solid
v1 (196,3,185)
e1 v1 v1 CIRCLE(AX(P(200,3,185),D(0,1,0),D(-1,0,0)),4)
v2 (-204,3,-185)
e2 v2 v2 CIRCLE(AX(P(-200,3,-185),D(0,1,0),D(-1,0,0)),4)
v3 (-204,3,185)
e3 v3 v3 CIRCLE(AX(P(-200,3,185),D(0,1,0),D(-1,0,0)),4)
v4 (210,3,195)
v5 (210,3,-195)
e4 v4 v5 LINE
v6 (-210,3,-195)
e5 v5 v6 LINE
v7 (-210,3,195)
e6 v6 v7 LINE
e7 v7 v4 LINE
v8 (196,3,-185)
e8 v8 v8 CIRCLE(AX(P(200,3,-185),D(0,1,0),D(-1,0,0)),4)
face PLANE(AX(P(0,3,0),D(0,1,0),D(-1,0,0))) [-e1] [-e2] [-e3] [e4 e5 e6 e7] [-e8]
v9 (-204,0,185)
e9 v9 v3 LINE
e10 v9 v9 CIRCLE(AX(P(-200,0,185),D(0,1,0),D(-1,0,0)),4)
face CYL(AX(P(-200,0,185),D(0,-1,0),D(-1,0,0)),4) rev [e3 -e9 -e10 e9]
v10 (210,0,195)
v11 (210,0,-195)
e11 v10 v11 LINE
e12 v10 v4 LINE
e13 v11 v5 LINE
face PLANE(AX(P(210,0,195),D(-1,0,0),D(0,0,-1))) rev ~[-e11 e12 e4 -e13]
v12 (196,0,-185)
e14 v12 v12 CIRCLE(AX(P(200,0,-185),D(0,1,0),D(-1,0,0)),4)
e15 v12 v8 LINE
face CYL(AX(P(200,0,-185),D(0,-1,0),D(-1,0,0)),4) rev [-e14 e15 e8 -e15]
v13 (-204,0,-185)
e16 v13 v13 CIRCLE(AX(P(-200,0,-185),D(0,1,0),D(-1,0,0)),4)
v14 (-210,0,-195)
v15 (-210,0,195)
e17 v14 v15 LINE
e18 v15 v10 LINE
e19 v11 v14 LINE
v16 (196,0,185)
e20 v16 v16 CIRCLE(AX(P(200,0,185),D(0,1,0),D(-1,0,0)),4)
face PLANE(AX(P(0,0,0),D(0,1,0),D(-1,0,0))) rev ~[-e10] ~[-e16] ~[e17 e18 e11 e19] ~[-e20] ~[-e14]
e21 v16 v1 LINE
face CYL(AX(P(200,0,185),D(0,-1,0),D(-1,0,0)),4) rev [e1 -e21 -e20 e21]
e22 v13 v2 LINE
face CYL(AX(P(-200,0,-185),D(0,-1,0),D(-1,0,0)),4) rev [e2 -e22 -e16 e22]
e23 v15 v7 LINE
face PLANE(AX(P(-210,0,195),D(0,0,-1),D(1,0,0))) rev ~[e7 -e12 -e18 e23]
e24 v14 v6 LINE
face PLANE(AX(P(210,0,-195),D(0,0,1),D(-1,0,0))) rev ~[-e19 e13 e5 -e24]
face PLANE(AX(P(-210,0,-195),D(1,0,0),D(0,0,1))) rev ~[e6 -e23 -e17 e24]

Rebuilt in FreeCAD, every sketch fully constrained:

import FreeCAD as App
import Part
import Sketcher
from FreeCAD import Vector
Q = App.Units.Quantity

doc = App.newDocument("Part")
params = doc.addObject("Spreadsheet::Sheet", "Params")
for row, (alias, value) in enumerate([
    ("sketch1_diameter", "8 mm"),
    ("sketch1_width", "420 mm"),
    ("sketch1_height", "390 mm"),
    ("pad1_length", "3 mm"),
], start=1):
    params.set(f"A{row}", alias)
    params.set(f"B{row}", "=" + value)
    params.setAlias(f"B{row}", alias)

body = doc.addObject("PartDesign::Body", "Body")

# Sketch on XZ plane
sketch1 = body.newObject("Sketcher::SketchObject", "Sketch")
sketch1.AttachmentSupport = (doc.getObject("XZ_Plane"), [""])
sketch1.MapMode = "FlatFace"
sketch1.addGeometry([
    Part.LineSegment(Vector(-210, -195, 0), Vector(-210, 195, 0)),  # 0
    Part.LineSegment(Vector(-210, 195, 0), Vector(210, 195, 0)),  # 1
    Part.LineSegment(Vector(210, 195, 0), Vector(210, -195, 0)),  # 2
    Part.LineSegment(Vector(210, -195, 0), Vector(-210, -195, 0)),  # 3
    Part.Circle(Vector(200, -185, 0), Vector(0, 0, 1), 4),  # 4
    Part.Circle(Vector(-200, -185, 0), Vector(0, 0, 1), 4),  # 5
    Part.Circle(Vector(200, 185, 0), Vector(0, 0, 1), 4),  # 6
    Part.Circle(Vector(-200, 185, 0), Vector(0, 0, 1), 4),  # 7
], False)
sketch1.addConstraint([
    Sketcher.Constraint("Coincident", 0, 2, 1, 1),
    Sketcher.Constraint("Coincident", 1, 2, 2, 1),
    Sketcher.Constraint("Coincident", 2, 2, 3, 1),
    Sketcher.Constraint("Coincident", 3, 2, 0, 1),
    Sketcher.Constraint("Vertical", 0),
    Sketcher.Constraint("Horizontal", 1),
    Sketcher.Constraint("Vertical", 2),
    Sketcher.Constraint("Horizontal", 3),
    Sketcher.Constraint("Equal", 4, 5),
    Sketcher.Constraint("Equal", 5, 6),
    Sketcher.Constraint("Equal", 6, 7),
    Sketcher.Constraint("Symmetric", 5, 3, 6, 3, -1, 1),
    Sketcher.Constraint("Symmetric", 4, 3, 7, 3, -1, 1),
    Sketcher.Constraint("Symmetric", 0, 2, 2, 2, -1, 1),
    Sketcher.Constraint("Symmetric", 4, 3, 5, 3, -2),
    Sketcher.Constraint("Diameter", 4, Q("8 mm")),
    Sketcher.Constraint("DistanceX", 1, 1, 1, 2, Q("420 mm")),
    Sketcher.Constraint("DistanceY", 0, 1, 0, 2, Q("390 mm")),
    Sketcher.Constraint("DistanceX", -1, 1, 4, 3, Q("200 mm")),
    Sketcher.Constraint("DistanceY", 4, 3, -1, 1, Q("185 mm")),
])
sketch1.setExpression("Constraints[15]", "Params.sketch1_diameter")
sketch1.setExpression("Constraints[16]", "Params.sketch1_width")
sketch1.setExpression("Constraints[17]", "Params.sketch1_height")
pad1 = body.newObject("PartDesign::Pad", "Pad")
pad1.Profile = sketch1
pad1.setExpression("Length", "Params.pad1_length")
pad1.Reversed = True

doc.recompute()
